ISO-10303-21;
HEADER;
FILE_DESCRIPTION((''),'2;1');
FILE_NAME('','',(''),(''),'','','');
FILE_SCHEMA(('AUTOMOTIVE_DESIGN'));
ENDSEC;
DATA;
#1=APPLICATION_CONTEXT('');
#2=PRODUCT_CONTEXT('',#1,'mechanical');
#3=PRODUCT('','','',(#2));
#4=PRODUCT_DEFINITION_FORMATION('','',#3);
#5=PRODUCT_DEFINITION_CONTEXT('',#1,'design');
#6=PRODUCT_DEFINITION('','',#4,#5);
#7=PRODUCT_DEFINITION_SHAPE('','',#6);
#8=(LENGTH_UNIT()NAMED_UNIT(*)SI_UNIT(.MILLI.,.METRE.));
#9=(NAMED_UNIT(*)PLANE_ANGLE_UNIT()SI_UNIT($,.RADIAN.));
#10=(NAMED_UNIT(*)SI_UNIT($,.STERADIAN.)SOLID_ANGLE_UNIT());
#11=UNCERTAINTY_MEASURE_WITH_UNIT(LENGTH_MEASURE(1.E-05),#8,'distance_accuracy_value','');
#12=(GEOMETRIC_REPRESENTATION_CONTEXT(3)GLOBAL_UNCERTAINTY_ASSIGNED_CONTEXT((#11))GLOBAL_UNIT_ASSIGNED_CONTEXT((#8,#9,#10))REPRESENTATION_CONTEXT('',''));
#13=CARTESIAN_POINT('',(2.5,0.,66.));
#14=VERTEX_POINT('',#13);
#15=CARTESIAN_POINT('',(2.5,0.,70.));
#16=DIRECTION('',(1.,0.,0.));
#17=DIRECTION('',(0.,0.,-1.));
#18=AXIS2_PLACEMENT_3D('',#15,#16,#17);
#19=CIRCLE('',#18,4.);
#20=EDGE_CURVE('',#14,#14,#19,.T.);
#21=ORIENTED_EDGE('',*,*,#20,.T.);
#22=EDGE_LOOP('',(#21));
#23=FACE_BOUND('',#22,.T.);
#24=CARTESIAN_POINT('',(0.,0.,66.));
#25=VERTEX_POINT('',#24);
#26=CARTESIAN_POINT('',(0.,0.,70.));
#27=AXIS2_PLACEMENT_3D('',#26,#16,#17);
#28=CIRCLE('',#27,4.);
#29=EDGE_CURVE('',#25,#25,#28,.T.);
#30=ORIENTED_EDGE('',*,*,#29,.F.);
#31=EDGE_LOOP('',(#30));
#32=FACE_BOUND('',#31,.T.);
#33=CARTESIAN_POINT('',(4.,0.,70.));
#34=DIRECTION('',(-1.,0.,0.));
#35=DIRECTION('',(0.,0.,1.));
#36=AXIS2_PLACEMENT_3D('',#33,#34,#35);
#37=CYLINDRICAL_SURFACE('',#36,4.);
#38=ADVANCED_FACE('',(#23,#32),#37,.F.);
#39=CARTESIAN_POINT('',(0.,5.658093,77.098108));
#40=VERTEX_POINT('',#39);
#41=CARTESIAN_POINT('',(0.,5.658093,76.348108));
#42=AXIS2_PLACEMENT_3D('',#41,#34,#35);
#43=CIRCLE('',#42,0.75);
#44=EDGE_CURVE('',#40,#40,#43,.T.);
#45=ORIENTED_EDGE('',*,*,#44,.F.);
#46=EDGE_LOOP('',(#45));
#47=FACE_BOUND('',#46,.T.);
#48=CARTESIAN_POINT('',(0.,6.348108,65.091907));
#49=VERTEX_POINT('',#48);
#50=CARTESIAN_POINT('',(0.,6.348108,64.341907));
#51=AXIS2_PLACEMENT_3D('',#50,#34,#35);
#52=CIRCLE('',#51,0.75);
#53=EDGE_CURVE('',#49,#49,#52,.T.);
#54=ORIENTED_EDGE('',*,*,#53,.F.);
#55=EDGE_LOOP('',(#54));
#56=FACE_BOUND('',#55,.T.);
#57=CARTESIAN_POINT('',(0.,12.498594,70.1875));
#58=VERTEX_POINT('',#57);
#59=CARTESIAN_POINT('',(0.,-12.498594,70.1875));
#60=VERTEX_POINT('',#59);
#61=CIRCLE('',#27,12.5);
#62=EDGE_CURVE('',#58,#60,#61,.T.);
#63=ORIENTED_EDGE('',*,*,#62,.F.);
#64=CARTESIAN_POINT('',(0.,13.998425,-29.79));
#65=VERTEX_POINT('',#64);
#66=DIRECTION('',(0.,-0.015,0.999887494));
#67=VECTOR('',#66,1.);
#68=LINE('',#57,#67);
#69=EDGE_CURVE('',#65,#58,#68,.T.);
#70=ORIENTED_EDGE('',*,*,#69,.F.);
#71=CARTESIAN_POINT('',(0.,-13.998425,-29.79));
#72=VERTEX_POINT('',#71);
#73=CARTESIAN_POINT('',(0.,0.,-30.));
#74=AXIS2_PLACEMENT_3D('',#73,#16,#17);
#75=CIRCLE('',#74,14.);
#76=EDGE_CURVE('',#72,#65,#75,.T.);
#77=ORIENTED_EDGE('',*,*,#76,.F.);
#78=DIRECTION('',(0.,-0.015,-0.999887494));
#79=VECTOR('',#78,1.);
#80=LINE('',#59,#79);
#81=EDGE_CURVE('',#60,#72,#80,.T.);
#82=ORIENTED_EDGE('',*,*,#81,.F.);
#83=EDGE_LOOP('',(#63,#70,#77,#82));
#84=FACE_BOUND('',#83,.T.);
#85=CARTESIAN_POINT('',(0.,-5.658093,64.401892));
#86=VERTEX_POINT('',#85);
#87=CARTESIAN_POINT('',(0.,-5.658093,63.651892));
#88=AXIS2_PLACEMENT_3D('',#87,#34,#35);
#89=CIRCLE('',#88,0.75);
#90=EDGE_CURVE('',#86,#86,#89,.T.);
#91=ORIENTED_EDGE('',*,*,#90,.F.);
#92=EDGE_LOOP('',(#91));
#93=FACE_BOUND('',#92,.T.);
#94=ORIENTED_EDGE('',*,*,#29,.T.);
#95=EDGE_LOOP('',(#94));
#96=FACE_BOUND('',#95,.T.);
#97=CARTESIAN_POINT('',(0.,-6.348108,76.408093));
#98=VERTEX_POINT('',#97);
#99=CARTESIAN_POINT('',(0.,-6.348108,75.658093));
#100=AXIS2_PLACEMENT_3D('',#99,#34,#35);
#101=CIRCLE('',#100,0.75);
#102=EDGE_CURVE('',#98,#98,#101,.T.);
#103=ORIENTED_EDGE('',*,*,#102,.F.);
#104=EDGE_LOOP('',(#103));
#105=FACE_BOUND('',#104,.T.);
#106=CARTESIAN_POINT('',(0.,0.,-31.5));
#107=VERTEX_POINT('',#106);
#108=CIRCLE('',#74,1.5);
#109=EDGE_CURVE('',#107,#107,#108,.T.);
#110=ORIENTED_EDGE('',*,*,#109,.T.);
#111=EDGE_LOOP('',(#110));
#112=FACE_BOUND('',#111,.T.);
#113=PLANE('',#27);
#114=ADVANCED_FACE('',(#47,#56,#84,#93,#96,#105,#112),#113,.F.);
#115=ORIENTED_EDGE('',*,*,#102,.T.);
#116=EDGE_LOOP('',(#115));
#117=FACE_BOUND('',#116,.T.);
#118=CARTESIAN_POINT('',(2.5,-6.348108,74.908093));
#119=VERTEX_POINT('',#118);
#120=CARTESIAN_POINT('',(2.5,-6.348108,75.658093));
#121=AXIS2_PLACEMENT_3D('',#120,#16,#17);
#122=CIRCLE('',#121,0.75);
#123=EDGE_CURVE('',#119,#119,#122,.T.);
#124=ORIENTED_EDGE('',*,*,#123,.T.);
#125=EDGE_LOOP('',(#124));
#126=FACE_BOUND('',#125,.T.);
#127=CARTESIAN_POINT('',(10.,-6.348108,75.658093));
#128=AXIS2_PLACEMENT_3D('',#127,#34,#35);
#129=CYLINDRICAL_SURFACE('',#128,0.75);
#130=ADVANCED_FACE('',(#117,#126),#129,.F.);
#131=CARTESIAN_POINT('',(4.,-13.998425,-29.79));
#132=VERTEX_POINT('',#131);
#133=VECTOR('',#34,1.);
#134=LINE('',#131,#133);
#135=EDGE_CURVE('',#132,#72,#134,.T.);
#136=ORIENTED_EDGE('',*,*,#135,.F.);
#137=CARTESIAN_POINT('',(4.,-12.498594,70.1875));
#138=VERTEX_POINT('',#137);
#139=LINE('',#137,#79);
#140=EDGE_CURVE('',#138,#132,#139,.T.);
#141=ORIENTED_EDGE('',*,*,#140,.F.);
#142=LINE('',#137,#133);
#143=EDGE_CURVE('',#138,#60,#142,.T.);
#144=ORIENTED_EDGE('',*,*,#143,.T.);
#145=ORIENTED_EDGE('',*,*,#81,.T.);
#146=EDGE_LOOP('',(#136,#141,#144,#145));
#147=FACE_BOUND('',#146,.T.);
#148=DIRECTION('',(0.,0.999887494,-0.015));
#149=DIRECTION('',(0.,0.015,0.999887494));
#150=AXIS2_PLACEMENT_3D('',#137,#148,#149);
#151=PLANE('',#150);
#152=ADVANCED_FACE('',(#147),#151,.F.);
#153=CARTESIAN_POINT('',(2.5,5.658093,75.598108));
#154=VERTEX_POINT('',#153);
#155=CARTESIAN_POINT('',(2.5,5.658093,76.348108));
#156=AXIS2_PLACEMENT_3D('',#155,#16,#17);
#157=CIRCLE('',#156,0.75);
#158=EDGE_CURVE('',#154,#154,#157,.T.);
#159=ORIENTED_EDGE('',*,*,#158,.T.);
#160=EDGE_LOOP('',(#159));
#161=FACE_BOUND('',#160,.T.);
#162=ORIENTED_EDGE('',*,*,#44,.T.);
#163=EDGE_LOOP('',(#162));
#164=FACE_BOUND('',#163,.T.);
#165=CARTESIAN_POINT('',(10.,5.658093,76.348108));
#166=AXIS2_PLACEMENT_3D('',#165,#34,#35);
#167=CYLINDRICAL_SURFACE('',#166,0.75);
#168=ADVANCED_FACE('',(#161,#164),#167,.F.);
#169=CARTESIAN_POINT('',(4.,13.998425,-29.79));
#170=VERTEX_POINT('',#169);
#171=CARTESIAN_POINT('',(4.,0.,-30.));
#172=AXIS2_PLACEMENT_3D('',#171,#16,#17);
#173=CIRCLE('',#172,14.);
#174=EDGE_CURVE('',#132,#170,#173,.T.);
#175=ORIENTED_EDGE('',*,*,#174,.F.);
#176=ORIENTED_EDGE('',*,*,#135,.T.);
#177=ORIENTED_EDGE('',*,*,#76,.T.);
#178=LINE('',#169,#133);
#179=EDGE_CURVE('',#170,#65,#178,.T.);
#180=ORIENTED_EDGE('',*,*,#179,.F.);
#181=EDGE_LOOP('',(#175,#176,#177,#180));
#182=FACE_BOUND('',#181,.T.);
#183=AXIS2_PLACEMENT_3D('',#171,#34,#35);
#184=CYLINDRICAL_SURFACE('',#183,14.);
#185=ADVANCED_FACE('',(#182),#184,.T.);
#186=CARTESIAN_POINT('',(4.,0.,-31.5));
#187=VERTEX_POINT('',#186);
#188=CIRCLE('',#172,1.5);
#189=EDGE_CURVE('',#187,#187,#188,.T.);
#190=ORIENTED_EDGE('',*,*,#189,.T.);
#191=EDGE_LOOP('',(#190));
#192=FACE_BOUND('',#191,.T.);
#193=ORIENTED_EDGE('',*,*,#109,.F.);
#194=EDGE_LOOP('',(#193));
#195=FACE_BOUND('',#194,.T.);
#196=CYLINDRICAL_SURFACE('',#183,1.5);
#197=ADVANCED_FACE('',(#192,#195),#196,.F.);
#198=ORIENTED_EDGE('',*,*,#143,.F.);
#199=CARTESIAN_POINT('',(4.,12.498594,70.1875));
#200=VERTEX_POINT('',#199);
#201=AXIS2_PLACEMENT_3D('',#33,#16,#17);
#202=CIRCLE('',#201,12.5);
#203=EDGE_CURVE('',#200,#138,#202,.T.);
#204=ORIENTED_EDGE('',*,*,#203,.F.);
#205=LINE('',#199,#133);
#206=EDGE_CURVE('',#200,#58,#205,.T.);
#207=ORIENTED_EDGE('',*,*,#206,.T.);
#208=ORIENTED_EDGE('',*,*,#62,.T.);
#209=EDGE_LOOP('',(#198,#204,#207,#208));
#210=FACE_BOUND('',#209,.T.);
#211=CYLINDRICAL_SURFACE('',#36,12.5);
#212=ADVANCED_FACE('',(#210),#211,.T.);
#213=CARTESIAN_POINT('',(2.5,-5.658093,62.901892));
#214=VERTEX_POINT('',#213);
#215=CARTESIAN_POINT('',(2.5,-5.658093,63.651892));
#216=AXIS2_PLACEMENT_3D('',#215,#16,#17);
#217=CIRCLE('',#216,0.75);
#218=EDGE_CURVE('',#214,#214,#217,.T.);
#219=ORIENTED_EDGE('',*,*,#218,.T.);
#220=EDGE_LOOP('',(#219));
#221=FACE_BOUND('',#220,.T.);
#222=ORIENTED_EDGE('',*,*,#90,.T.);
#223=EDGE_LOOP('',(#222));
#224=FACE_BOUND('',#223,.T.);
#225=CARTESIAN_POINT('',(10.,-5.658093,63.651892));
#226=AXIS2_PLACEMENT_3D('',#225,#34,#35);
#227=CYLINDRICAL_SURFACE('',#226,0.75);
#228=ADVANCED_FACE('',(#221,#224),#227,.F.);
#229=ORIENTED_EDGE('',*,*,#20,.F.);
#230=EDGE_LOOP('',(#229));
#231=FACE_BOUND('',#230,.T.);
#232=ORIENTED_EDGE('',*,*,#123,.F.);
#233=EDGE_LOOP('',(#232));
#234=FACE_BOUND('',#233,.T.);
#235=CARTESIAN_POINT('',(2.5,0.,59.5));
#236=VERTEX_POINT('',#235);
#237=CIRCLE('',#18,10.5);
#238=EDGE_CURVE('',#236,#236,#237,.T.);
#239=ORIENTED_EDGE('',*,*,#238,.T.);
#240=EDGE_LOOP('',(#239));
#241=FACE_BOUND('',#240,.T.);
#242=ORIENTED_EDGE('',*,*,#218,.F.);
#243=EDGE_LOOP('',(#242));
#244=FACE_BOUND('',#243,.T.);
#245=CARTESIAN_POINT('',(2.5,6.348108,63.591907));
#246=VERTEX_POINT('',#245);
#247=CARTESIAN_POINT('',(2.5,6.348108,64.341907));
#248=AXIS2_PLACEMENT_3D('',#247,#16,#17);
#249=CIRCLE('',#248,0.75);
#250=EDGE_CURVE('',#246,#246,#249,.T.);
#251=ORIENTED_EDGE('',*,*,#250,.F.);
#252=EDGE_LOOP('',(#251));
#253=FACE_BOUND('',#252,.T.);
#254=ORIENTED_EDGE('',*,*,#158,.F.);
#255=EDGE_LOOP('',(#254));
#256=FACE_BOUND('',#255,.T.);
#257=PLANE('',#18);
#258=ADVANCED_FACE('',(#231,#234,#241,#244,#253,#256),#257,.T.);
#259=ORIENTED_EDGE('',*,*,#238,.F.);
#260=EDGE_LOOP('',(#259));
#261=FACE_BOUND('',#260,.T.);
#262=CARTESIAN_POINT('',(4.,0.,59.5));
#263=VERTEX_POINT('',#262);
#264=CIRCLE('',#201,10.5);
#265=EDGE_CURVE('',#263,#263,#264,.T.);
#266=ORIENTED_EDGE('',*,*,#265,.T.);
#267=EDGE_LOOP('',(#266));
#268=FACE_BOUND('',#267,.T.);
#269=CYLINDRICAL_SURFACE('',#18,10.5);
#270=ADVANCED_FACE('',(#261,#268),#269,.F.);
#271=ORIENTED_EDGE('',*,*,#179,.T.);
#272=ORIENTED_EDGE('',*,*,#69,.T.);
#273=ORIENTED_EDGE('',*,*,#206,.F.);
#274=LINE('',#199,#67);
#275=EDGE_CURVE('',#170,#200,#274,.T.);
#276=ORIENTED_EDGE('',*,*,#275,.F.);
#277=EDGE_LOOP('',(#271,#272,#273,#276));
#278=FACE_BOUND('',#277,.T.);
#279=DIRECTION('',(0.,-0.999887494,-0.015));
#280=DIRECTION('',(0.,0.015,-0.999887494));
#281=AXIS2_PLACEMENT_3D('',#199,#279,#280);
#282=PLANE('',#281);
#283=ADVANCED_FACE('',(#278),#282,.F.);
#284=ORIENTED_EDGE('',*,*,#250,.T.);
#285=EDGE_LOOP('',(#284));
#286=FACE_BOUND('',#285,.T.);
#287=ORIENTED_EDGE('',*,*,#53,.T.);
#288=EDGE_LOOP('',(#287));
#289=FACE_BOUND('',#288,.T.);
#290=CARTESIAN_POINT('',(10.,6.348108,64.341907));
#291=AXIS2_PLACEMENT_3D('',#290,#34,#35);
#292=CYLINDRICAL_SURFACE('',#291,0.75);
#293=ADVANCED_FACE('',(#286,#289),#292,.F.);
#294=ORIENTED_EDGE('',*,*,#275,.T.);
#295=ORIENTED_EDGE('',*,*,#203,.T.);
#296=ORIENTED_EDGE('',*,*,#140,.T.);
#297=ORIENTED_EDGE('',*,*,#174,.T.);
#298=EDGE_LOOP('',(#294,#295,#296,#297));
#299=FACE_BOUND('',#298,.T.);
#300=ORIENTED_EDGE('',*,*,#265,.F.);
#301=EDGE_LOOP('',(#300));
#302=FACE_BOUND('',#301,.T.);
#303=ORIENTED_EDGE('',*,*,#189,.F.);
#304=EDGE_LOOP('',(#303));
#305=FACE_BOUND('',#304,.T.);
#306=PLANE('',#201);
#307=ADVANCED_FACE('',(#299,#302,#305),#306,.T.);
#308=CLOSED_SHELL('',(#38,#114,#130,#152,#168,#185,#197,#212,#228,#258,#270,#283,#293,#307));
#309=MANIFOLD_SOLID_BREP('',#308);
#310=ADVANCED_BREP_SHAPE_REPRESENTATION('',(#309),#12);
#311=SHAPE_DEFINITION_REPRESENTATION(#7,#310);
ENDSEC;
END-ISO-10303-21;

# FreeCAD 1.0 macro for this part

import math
import FreeCAD as App
import Part
import Sketcher
from FreeCAD import Vector
Q = App.Units.Quantity

doc = App.newDocument("Part")
body = doc.addObject("PartDesign::Body", "Body")

# Sketch on YZ plane
sketch1 = body.newObject("Sketcher::SketchObject", "Sketch")
sketch1.AttachmentSupport = (doc.getObject("YZ_Plane"), [""])
sketch1.MapMode = "FlatFace"
sketch1.addGeometry([
    Part.LineSegment(Vector(14, -29.8, 0), Vector(12.5, 70.2, 0)),  # 0
    Part.ArcOfCircle(Part.Circle(Vector(0, 70, 0), Vector(0, 0, 1), 12.5), math.radians(1), math.radians(179)),  # 1
    Part.LineSegment(Vector(-12.5, 70.2, 0), Vector(-14, -29.8, 0)),  # 2
    Part.ArcOfCircle(Part.Circle(Vector(0, -30, 0), Vector(0, 0, 1), 14), math.radians(179), math.radians(361)),  # 3
    Part.Circle(Vector(0, -30, 0), Vector(0, 0, 1), 1.5),  # 4
    Part.Circle(Vector(0, 70, 0), Vector(0, 0, 1), 4),  # 5
], False)
sketch1.addConstraint([
    Sketcher.Constraint("Tangent", 0, 2, 1, 1),
    Sketcher.Constraint("Tangent", 1, 2, 2, 1),
    Sketcher.Constraint("Tangent", 2, 2, 3, 1),
    Sketcher.Constraint("Tangent", 3, 2, 0, 1),
    Sketcher.Constraint("Coincident", 4, 3, 3, 3),
    Sketcher.Constraint("Coincident", 5, 3, 1, 3),
    Sketcher.Constraint("Symmetric", 0, 2, 1, 2, -2),
    Sketcher.Constraint("Diameter", 4, Q("3 mm")),
    Sketcher.Constraint("Diameter", 5, Q("8 mm")),
    Sketcher.Constraint("Radius", 3, Q("14 mm")),
    Sketcher.Constraint("Radius", 1, Q("12.5 mm")),
    Sketcher.Constraint("DistanceY", -1, 1, 1, 3, Q("70 mm")),
    Sketcher.Constraint("DistanceY", 3, 3, -1, 1, Q("30 mm")),
])
pad1 = body.newObject("PartDesign::Pad", "Pad")
pad1.Profile = sketch1
pad1.Length = 4

# Sketch on YZ plane
sketch2 = body.newObject("Sketcher::SketchObject", "Sketch001")
sketch2.AttachmentSupport = (doc.getObject("YZ_Plane"), [""])
sketch2.MapMode = "FlatFace"
sketch2.AttachmentOffset = App.Placement(Vector(0, 0, 4), App.Rotation())
sketch2.addGeometry(Part.Circle(Vector(0, 70, 0), Vector(0, 0, 1), 10), False)
sketch2.addConstraint([
    Sketcher.Constraint("PointOnObject", 0, 3, -2),
    Sketcher.Constraint("Diameter", 0, Q("21 mm")),
    Sketcher.Constraint("DistanceY", -1, 1, 0, 3, Q("70 mm")),
])
pocket1 = body.newObject("PartDesign::Pocket", "Pocket")
pocket1.Profile = sketch2
pocket1.Length = 1.5

# Sketch on YZ plane
sketch3 = body.newObject("Sketcher::SketchObject", "Sketch002")
sketch3.AttachmentSupport = (doc.getObject("YZ_Plane"), [""])
sketch3.MapMode = "FlatFace"
sketch3.addGeometry([
    Part.Circle(Vector(-5.7, 63.7, 0), Vector(0, 0, 1), 0.8),
    Part.Circle(Vector(5.7, 76.3, 0), Vector(0, 0, 1), 0.8),
    Part.Circle(Vector(6.3, 64.3, 0), Vector(0, 0, 1), 0.8),
    Part.Circle(Vector(-6.3, 75.7, 0), Vector(0, 0, 1), 0.8),
], False)
sketch3.addConstraint([
    Sketcher.Constraint("Equal", 0, 1),
    Sketcher.Constraint("Equal", 1, 2),
    Sketcher.Constraint("Equal", 2, 3),
    Sketcher.Constraint("Diameter", 0, Q("1.5 mm")),
    Sketcher.Constraint("DistanceY", 2, 3, 1, 3, Q("12.006202 mm")),
    Sketcher.Constraint("DistanceX", 0, 3, 2, 3, Q("12.006202 mm")),
    Sketcher.Constraint("DistanceX", 3, 3, 1, 3, Q("12.006202 mm")),
    Sketcher.Constraint("DistanceY", 0, 3, 3, 3, Q("12.006202 mm")),
    Sketcher.Constraint("DistanceY", -1, 1, 0, 3, Q("63.651892 mm")),
    Sketcher.Constraint("DistanceY", -1, 1, 1, 3, Q("76.348108 mm")),
    Sketcher.Constraint("DistanceX", -1, 1, 2, 3, Q("6.348108 mm")),
    Sketcher.Constraint("DistanceX", 3, 3, -1, 1, Q("6.348108 mm")),
])
pocket2 = body.newObject("PartDesign::Pocket", "Pocket001")
pocket2.Profile = sketch3
pocket2.Length = 10
pocket2.Reversed = True

doc.recompute()
